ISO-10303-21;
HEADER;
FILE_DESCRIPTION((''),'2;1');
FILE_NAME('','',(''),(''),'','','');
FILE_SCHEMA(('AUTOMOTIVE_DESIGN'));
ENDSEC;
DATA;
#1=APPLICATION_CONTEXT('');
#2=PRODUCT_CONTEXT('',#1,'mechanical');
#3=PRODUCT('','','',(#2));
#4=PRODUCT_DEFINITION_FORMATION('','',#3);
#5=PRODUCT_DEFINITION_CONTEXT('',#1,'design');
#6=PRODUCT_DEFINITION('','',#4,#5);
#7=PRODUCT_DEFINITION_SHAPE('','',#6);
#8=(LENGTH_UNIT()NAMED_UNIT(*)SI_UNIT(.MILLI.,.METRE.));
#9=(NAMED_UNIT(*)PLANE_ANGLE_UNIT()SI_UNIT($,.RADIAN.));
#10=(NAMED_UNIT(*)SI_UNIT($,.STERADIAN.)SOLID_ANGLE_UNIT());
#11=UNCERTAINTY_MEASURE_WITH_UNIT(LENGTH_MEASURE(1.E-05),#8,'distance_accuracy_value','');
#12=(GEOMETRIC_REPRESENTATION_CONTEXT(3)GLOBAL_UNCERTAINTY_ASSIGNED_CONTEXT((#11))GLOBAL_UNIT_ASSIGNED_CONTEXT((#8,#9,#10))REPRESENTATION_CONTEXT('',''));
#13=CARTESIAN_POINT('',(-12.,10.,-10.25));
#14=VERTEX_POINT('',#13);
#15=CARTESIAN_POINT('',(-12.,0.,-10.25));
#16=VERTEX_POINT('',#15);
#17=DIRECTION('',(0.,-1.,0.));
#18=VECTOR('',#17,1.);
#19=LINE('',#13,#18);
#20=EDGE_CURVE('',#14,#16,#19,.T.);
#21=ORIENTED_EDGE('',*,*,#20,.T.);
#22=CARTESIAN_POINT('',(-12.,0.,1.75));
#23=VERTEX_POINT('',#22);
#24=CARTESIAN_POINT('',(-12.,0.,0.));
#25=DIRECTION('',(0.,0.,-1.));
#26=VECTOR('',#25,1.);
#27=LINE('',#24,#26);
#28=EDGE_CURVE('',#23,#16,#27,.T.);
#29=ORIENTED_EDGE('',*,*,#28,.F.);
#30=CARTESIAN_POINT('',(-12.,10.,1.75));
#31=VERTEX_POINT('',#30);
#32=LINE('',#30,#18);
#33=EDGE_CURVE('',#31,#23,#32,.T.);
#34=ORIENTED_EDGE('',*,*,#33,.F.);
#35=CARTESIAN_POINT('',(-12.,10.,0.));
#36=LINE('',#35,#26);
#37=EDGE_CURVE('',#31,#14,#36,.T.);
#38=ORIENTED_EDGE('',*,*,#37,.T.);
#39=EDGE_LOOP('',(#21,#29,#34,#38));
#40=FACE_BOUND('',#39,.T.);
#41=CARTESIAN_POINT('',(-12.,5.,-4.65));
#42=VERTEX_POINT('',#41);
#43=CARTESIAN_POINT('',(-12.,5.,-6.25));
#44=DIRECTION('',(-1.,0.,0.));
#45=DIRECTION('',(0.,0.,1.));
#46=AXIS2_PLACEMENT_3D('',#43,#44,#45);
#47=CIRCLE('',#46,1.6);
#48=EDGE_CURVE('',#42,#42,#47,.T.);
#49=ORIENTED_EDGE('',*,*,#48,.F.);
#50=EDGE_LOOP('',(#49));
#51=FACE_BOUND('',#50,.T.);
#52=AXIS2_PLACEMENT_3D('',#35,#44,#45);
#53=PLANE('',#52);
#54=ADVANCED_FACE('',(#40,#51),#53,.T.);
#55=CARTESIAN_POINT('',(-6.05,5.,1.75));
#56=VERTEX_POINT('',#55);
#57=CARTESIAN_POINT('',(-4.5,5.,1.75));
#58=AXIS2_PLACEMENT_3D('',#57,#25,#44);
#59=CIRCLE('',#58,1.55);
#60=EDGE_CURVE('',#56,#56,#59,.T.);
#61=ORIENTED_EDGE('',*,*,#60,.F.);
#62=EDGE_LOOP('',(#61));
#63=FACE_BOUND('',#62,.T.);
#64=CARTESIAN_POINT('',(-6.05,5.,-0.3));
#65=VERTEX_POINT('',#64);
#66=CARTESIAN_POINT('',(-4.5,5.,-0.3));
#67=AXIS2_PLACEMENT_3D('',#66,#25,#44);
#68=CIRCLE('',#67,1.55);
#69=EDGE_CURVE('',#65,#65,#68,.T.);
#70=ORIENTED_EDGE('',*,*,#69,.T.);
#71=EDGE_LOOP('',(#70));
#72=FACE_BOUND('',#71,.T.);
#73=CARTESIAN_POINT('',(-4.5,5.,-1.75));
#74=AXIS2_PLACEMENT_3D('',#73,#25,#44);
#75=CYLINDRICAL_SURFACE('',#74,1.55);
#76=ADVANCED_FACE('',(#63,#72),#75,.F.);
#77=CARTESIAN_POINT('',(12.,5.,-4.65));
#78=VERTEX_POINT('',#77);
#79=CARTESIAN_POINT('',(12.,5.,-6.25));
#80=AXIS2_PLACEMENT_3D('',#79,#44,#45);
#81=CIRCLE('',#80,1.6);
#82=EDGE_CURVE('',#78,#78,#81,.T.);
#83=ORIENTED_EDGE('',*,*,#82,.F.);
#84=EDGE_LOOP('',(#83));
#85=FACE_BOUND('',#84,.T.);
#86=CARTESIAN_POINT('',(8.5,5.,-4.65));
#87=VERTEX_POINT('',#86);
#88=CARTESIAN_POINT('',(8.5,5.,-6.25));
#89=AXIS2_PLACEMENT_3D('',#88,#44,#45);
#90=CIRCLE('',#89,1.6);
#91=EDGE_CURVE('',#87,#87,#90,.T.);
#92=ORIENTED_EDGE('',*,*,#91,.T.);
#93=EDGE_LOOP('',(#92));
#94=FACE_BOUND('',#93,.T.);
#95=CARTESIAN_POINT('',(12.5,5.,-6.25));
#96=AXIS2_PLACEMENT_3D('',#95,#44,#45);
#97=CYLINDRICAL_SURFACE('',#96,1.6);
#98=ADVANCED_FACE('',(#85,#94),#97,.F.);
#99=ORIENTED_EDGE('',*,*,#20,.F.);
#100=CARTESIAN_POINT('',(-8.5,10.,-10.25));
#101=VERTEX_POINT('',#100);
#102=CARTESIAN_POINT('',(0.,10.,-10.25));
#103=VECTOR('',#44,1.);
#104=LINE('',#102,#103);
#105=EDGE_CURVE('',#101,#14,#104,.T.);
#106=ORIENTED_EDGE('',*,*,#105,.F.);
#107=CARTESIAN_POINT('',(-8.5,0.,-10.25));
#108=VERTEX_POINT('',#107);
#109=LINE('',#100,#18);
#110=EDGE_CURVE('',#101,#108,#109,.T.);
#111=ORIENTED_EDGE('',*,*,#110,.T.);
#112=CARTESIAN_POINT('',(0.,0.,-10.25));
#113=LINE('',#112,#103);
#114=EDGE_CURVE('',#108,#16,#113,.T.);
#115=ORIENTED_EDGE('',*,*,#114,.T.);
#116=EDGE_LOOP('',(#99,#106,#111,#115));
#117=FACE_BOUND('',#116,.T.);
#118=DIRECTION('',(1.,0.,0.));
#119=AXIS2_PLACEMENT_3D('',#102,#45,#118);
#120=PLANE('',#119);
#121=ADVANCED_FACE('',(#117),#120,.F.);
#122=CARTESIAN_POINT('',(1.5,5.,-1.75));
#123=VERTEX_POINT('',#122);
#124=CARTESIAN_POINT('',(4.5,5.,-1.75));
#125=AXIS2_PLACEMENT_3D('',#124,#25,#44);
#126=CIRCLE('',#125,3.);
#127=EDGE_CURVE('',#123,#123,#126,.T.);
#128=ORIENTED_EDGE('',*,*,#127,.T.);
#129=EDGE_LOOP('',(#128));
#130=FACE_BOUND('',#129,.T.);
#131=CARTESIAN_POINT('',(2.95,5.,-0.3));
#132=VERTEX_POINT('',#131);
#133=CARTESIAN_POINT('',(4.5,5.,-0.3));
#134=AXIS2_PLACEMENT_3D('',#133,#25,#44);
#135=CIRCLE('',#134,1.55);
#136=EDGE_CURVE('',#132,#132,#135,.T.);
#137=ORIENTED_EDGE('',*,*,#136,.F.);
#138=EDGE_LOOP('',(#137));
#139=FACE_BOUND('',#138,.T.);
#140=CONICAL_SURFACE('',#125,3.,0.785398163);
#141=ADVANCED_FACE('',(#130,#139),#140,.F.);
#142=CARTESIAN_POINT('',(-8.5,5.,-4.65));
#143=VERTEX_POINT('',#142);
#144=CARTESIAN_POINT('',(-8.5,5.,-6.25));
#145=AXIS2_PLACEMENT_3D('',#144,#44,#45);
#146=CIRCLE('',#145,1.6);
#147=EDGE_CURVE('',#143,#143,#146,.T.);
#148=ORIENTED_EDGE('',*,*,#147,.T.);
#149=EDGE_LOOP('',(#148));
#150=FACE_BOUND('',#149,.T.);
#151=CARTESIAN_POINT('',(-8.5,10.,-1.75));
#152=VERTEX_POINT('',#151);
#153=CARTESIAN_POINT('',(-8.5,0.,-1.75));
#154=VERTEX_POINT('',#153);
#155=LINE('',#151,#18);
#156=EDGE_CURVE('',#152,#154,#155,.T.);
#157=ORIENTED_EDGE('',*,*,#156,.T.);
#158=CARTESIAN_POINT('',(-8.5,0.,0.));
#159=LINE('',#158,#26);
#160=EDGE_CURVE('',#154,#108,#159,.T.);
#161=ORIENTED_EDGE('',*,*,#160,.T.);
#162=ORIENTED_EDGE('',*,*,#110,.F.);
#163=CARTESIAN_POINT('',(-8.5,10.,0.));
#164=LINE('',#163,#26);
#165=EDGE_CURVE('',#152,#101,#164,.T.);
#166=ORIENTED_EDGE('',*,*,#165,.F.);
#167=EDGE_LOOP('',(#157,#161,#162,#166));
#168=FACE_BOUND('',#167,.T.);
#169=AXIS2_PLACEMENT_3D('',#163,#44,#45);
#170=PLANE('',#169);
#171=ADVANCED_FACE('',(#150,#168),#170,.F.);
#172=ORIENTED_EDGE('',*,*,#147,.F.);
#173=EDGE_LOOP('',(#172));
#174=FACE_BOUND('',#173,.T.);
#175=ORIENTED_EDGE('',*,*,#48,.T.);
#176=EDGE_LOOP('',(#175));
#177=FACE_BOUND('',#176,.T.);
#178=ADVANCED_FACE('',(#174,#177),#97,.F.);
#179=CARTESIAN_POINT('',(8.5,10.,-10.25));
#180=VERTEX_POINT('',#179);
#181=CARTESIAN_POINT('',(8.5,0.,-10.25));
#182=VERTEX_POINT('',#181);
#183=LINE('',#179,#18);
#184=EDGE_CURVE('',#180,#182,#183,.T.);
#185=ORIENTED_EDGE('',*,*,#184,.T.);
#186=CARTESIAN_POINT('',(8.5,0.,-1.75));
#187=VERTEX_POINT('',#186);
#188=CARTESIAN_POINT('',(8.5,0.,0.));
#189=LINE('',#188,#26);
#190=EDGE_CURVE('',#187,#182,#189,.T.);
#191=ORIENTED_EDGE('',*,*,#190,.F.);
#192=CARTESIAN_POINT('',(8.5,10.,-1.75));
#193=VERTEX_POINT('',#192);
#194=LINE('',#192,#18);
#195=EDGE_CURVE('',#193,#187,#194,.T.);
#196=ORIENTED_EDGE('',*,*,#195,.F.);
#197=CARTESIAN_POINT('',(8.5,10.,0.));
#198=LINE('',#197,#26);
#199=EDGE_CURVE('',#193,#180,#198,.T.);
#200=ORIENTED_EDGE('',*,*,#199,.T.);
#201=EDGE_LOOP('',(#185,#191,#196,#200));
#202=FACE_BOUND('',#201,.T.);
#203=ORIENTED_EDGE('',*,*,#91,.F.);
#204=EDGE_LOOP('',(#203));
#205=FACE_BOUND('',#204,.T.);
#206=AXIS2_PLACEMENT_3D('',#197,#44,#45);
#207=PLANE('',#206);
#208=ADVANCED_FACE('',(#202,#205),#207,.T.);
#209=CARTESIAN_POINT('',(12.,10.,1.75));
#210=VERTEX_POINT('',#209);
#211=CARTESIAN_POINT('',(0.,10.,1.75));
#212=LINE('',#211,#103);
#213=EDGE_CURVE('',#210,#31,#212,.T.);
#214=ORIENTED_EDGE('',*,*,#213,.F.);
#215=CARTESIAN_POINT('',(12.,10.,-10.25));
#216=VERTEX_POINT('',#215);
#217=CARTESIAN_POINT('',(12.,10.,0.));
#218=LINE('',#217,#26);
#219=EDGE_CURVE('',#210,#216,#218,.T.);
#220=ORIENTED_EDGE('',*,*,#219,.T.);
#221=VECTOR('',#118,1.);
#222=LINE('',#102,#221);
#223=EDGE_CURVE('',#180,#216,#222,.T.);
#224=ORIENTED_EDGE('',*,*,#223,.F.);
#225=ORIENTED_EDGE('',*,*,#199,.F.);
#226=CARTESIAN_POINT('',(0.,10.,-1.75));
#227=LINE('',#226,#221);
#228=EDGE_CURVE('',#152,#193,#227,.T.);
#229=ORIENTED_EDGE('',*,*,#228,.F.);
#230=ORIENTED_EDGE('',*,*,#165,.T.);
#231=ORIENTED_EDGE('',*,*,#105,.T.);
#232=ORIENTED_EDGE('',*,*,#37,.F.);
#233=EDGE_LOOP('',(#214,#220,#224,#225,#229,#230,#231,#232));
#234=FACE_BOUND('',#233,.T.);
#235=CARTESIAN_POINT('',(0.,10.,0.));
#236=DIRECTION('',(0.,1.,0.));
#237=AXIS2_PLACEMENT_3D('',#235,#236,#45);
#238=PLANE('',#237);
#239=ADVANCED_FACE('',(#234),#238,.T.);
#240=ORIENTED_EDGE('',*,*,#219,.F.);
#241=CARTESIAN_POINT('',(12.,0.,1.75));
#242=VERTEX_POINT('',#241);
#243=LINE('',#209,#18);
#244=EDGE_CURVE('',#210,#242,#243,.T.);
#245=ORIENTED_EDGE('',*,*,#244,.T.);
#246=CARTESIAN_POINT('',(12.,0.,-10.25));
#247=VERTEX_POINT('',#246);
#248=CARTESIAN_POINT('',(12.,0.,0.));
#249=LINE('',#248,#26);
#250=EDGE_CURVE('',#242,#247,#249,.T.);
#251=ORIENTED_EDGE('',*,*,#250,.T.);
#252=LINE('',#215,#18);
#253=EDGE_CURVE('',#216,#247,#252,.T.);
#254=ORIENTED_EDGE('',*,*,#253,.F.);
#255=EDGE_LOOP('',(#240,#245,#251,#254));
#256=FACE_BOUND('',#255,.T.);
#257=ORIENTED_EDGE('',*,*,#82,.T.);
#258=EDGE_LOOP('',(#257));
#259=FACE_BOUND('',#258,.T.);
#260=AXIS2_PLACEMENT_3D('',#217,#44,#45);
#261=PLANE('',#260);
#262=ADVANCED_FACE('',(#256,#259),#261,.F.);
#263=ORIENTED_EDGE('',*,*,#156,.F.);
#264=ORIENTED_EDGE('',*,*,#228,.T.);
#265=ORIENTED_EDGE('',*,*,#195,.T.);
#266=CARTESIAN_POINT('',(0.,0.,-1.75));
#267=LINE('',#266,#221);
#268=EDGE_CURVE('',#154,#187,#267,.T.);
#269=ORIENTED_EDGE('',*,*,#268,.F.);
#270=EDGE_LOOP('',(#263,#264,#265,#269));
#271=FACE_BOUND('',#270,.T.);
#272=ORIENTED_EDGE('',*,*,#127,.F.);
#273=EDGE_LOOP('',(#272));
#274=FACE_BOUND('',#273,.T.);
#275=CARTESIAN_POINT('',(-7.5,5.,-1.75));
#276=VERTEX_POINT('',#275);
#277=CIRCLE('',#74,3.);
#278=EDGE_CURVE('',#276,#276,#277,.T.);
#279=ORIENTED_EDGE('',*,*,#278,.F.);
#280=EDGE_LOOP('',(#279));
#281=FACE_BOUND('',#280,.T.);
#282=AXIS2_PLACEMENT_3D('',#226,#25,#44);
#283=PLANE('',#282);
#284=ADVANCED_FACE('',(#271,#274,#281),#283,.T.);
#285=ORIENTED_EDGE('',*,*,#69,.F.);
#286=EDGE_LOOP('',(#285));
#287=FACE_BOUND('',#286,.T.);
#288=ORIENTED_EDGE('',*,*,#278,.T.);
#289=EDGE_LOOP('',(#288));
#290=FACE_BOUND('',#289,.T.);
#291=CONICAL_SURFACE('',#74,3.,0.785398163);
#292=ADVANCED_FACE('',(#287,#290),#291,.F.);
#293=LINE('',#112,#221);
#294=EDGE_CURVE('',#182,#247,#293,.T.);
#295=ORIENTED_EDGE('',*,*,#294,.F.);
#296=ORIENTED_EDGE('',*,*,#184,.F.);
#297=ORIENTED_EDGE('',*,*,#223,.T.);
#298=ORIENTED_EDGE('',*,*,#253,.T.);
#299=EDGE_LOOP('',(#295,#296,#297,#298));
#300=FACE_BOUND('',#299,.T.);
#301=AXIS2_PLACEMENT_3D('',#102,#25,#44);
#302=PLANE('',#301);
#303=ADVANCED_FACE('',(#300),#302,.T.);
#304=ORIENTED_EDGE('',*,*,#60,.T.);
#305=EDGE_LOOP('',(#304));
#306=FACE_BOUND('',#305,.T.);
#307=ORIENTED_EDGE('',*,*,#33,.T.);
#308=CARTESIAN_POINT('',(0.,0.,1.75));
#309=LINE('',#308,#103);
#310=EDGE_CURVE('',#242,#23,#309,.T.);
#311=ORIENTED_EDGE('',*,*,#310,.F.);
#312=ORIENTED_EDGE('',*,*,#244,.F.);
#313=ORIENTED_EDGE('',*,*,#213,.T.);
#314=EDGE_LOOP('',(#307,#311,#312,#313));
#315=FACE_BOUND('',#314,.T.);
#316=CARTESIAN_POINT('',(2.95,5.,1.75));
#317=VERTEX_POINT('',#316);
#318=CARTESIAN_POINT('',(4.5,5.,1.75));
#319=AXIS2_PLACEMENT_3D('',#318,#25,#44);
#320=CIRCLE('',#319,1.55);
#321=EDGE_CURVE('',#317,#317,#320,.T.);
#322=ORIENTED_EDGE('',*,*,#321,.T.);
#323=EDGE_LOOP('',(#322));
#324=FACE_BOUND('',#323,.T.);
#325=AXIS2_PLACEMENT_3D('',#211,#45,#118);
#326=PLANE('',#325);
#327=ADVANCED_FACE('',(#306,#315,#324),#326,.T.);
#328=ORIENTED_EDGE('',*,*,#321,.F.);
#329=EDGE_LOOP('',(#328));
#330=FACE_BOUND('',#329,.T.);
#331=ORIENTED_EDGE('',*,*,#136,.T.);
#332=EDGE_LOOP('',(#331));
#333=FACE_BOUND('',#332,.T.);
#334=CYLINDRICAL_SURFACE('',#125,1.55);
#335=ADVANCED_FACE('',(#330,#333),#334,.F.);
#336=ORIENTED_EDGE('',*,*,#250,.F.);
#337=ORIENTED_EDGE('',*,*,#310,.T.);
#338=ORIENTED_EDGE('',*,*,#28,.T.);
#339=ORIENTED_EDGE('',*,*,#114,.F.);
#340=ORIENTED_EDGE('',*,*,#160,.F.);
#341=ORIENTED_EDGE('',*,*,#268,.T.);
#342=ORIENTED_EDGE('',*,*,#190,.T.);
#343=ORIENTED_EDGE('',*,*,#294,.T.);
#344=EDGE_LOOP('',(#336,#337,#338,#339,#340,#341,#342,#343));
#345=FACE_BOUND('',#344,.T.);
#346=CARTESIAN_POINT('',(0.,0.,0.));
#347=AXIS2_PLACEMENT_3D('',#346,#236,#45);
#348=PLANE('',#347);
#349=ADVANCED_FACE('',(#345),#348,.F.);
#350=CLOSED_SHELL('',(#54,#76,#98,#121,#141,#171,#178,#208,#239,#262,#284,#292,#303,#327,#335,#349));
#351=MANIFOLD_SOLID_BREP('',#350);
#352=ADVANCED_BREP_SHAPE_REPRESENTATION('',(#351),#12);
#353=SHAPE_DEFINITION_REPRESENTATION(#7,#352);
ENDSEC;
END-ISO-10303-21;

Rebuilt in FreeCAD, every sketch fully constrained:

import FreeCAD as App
import Part
import Sketcher
from FreeCAD import Vector

doc = App.newDocument("Part")
params = doc.addObject("Spreadsheet::Sheet", "Params")
for row, (alias, value) in enumerate([
    ("sketch1_width", "24 mm"),
    ("sketch1_width2", "17 mm"),
    ("sketch1_height", "12 mm"),
    ("sketch1_height2", "8.5 mm"),
    ("pad1_length", "10 mm"),
    ("sketch2_diameter", "3.2 mm"),
    ("sketch3_diameter", "3 mm"),
    ("sketch4_diameter", "3.1 mm"),
    ("hole_diameter", "3.1 mm"),
    ("hole_csink_diameter", "6 mm"),
], start=1):
    params.set(f"A{row}", alias)
    params.set(f"B{row}", "=" + value)
    params.setAlias(f"B{row}", alias)

body = doc.addObject("PartDesign::Body", "Body")

sketch1 = body.newObject("Sketcher::SketchObject", "Sketch")
sketch1.AttachmentSupport = (doc.getObject("XZ_Plane"), [""])
sketch1.MapMode = "FlatFace"
sketch1.addGeometry(Part.LineSegment(Vector(-12, 1.8, 0), Vector(12, 1.8, 0)), False)
sketch1.addGeometry(Part.LineSegment(Vector(12, 1.8, 0), Vector(12, -10.2, 0)), False)
sketch1.addGeometry(Part.LineSegment(Vector(12, -10.2, 0), Vector(8.5, -10.2, 0)), False)
sketch1.addGeometry(Part.LineSegment(Vector(8.5, -10.2, 0), Vector(8.5, -1.8, 0)), False)
sketch1.addGeometry(Part.LineSegment(Vector(8.5, -1.8, 0), Vector(-8.5, -1.8, 0)), False)
sketch1.addGeometry(Part.LineSegment(Vector(-8.5, -1.8, 0), Vector(-8.5, -10.2, 0)), False)
sketch1.addGeometry(Part.LineSegment(Vector(-8.5, -10.2, 0), Vector(-12, -10.2, 0)), False)
sketch1.addGeometry(Part.LineSegment(Vector(-12, -10.2, 0), Vector(-12, 1.8, 0)), False)
sketch1.addConstraint(Sketcher.Constraint("Coincident", 0, 2, 1, 1))
sketch1.addConstraint(Sketcher.Constraint("Coincident", 1, 2, 2, 1))
sketch1.addConstraint(Sketcher.Constraint("Coincident", 2, 2, 3, 1))
sketch1.addConstraint(Sketcher.Constraint("Coincident", 3, 2, 4, 1))
sketch1.addConstraint(Sketcher.Constraint("Coincident", 4, 2, 5, 1))
sketch1.addConstraint(Sketcher.Constraint("Coincident", 5, 2, 6, 1))
sketch1.addConstraint(Sketcher.Constraint("Coincident", 6, 2, 7, 1))
sketch1.addConstraint(Sketcher.Constraint("Coincident", 7, 2, 0, 1))
sketch1.addConstraint(Sketcher.Constraint("Horizontal", 0))
sketch1.addConstraint(Sketcher.Constraint("Vertical", 1))
sketch1.addConstraint(Sketcher.Constraint("Horizontal", 2))
sketch1.addConstraint(Sketcher.Constraint("Vertical", 3))
sketch1.addConstraint(Sketcher.Constraint("Horizontal", 4))
sketch1.addConstraint(Sketcher.Constraint("Vertical", 5))
sketch1.addConstraint(Sketcher.Constraint("Horizontal", 6))
sketch1.addConstraint(Sketcher.Constraint("Vertical", 7))
sketch1.addConstraint(Sketcher.Constraint("Symmetric", 2, 2, 5, 2, -2))
sketch1.addConstraint(Sketcher.Constraint("Equal", 2, 6))
sketch1.addConstraint(Sketcher.Constraint("DistanceX", 0, 1, 0, 2, 24.0))
sketch1.addConstraint(Sketcher.Constraint("DistanceX", 4, 2, 4, 1, 17.0))
sketch1.addConstraint(Sketcher.Constraint("DistanceY", 1, 2, 1, 1, 12.0))
sketch1.addConstraint(Sketcher.Constraint("DistanceY", 3, 1, 3, 2, 8.5))
sketch1.addConstraint(Sketcher.Constraint("DistanceY", -1, 1, 0, 2, 1.75))
sketch1.setExpression("Constraints[18]", "Params.sketch1_width")
sketch1.setExpression("Constraints[19]", "Params.sketch1_width2")
sketch1.setExpression("Constraints[20]", "Params.sketch1_height")
sketch1.setExpression("Constraints[21]", "Params.sketch1_height2")
pad1 = body.newObject("PartDesign::Pad", "Pad")
pad1.Profile = sketch1
pad1.setExpression("Length", "Params.pad1_length")
pad1.Reversed = True

sketch2 = body.newObject("Sketcher::SketchObject", "Sketch001")
sketch2.AttachmentSupport = (doc.getObject("YZ_Plane"), [""])
sketch2.MapMode = "FlatFace"
sketch2.AttachmentOffset = App.Placement(Vector(0, 0, -12), App.Rotation())
sketch2.addGeometry(Part.Circle(Vector(5, -6.2, 0), Vector(0, 0, 1), 1.6), False)
sketch2.addConstraint(Sketcher.Constraint("Diameter", 0, 3.2))
sketch2.addConstraint(Sketcher.Constraint("DistanceX", -1, 1, 0, 3, 5.0))
sketch2.addConstraint(Sketcher.Constraint("DistanceY", 0, 3, -1, 1, 6.25))
sketch2.setExpression("Constraints[0]", "Params.sketch2_diameter")
pocket1 = body.newObject("PartDesign::Pocket", "Pocket")
pocket1.Profile = sketch2
pocket1.Type = "ThroughAll"
pocket1.Reversed = True

sketch3 = body.newObject("Sketcher::SketchObject", "Sketch002")
sketch3.AttachmentSupport = (doc.getObject("XY_Plane"), [""])
sketch3.MapMode = "FlatFace"
sketch3.AttachmentOffset = App.Placement(Vector(0, 0, -1.75), App.Rotation())
sketch3.addGeometry(Part.Circle(Vector(4.5, 5, 0), Vector(0, 0, 1), 1.5), False)
sketch3.addGeometry(Part.Circle(Vector(-4.5, 5, 0), Vector(0, 0, 1), 1.5), False)
sketch3.addConstraint(Sketcher.Constraint("Equal", 0, 1))
sketch3.addConstraint(Sketcher.Constraint("Symmetric", 0, 3, 1, 3, -2))
sketch3.addConstraint(Sketcher.Constraint("Diameter", 0, 3.0))
sketch3.addConstraint(Sketcher.Constraint("DistanceY", -1, 1, 0, 3, 5.0))
sketch3.addConstraint(Sketcher.Constraint("DistanceX", 1, 3, 0, 3, 9.0))
sketch3.setExpression("Constraints[2]", "Params.sketch3_diameter")
pocket2 = body.newObject("PartDesign::Pocket", "Pocket001")
pocket2.Profile = sketch3
pocket2.Type = "ThroughAll"
pocket2.Reversed = True

sketch4 = body.newObject("Sketcher::SketchObject", "Sketch003")
sketch4.AttachmentSupport = (doc.getObject("XY_Plane"), [""])
sketch4.MapMode = "FlatFace"
sketch4.AttachmentOffset = App.Placement(Vector(0, 0, -1.75), App.Rotation())
sketch4.addGeometry(Part.Circle(Vector(4.5, 5, 0), Vector(0, 0, 1), 1.6), False)
sketch4.addGeometry(Part.Circle(Vector(-4.5, 5, 0), Vector(0, 0, 1), 1.6), False)
sketch4.addConstraint(Sketcher.Constraint("Equal", 0, 1))
sketch4.addConstraint(Sketcher.Constraint("Symmetric", 0, 3, 1, 3, -2))
sketch4.addConstraint(Sketcher.Constraint("Diameter", 0, 3.1))
sketch4.addConstraint(Sketcher.Constraint("DistanceY", -1, 1, 0, 3, 5.0))
sketch4.addConstraint(Sketcher.Constraint("DistanceX", 1, 3, 0, 3, 9.0))
sketch4.setExpression("Constraints[2]", "Params.sketch4_diameter")
doc.recompute()
hole = body.newObject("PartDesign::Hole", "Hole")
hole.Profile = sketch4
hole.ThreadType = "None"
hole.setExpression("Diameter", "Params.hole_diameter")
hole.DepthType = "ThroughAll"
hole.HoleCutType = "Countersink"
hole.setExpression("HoleCutDiameter", "Params.hole_csink_diameter")
hole.HoleCutCountersinkAngle = 90
hole.Reversed = True

doc.recompute()
